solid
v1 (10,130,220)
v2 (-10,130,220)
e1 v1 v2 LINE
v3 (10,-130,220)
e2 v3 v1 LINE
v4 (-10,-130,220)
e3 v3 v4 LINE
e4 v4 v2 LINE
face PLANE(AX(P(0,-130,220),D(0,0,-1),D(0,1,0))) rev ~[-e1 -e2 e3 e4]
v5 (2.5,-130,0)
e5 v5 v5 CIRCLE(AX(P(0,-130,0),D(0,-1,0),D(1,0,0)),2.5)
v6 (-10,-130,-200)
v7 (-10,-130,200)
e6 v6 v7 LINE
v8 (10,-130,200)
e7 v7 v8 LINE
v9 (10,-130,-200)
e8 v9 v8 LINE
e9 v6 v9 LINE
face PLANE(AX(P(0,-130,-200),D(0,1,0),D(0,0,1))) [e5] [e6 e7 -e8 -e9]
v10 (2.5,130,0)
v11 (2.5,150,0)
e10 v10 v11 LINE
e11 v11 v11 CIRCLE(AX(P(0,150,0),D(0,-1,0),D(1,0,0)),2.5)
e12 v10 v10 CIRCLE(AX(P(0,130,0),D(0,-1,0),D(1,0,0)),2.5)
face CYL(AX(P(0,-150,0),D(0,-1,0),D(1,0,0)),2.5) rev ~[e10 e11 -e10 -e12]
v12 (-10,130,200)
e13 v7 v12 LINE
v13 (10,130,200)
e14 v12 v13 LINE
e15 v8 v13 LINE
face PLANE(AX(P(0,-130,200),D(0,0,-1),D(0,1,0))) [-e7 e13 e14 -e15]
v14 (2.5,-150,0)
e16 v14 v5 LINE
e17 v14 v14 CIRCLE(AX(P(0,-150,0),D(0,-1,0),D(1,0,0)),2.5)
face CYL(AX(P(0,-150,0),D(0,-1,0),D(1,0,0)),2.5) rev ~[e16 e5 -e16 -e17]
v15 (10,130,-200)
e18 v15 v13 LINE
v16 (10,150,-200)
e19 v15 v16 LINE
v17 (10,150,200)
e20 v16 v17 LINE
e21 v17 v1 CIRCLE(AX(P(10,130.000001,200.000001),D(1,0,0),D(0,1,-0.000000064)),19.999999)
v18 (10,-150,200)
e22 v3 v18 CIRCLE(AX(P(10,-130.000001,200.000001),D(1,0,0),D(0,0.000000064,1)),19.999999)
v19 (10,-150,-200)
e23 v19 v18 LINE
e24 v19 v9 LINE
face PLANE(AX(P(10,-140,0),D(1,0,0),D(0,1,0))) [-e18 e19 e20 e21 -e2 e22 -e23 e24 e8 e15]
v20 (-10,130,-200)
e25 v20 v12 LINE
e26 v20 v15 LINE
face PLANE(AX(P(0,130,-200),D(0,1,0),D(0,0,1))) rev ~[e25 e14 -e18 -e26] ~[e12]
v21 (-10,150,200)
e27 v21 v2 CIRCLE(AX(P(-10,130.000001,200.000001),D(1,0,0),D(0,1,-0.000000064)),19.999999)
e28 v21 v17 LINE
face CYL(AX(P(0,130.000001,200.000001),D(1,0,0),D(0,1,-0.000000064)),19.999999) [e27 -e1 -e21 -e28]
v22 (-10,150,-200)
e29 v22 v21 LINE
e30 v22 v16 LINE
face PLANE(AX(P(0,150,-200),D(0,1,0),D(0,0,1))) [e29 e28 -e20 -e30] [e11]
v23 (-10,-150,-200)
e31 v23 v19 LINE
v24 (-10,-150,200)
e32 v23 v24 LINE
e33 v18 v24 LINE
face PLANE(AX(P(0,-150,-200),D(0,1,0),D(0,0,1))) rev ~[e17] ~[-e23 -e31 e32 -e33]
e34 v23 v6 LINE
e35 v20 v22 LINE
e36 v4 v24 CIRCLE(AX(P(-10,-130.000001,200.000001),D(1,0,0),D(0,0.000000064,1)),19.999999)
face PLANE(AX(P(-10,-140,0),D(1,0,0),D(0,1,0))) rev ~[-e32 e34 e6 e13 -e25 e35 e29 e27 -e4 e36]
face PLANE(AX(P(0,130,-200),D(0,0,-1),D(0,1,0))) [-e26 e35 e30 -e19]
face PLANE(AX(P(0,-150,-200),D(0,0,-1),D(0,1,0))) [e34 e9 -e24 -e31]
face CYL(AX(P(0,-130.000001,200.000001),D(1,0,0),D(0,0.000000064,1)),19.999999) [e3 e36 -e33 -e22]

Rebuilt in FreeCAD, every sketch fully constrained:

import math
import FreeCAD as App
import Part
import Sketcher

V = App.Vector
Q = App.Units.Quantity

doc = App.newDocument("Part")
params = doc.addObject("Spreadsheet::Sheet", "Params")
for row, (alias, value) in enumerate([
    ("sketch1_radius", "19.999999 mm"),
    ("sketch1_width", "260 mm"),
    ("sketch1_height", "400 mm"),
    ("pad1_length", "20 mm"),
    ("sketch2_diameter", "5 mm"),
    ("pocket1_length", "3000 mm"),
], start=1):
    params.set(f"A{row}", alias)
    params.set(f"B{row}", "=" + value)
    params.setAlias(f"B{row}", alias)

body = doc.addObject("PartDesign::Body", "Body")

# Sketch on YZ plane
sketch1 = doc.addObject("Sketcher::SketchObject", "Sketch")
body.addObject(sketch1)
sketch1.AttachmentSupport = (doc.YZ_Plane, [""])
sketch1.MapMode = "FlatFace"
sketch1.addGeometry([
    Part.LineSegment(V(-150, 200, 0), V(-150, -200, 0)),  # 0
    Part.LineSegment(V(-150, -200, 0), V(-130, -200, 0)),  # 1
    Part.LineSegment(V(-130, -200, 0), V(-130, 200, 0)),  # 2
    Part.LineSegment(V(-130, 200, 0), V(130, 200, 0)),  # 3
    Part.LineSegment(V(130, 200, 0), V(130, -200, 0)),  # 4
    Part.LineSegment(V(130, -200, 0), V(150, -200, 0)),  # 5
    Part.LineSegment(V(150, -200, 0), V(150, 200, 0)),  # 6
    Part.ArcOfCircle(Part.Circle(V(130, 200, 0), V(0, 0, 1), 20), math.radians(0), math.radians(90)),  # 7
    Part.LineSegment(V(130, 220, 0), V(-130, 220, 0)),  # 8
    Part.ArcOfCircle(Part.Circle(V(-130, 200, 0), V(0, 0, 1), 20), math.radians(90), math.radians(180)),  # 9
], False)
sketch1.addConstraint([
    Sketcher.Constraint("Coincident", 0, 2, 1, 1),
    Sketcher.Constraint("Coincident", 1, 2, 2, 1),
    Sketcher.Constraint("Coincident", 2, 2, 3, 1),
    Sketcher.Constraint("Coincident", 3, 2, 4, 1),
    Sketcher.Constraint("Coincident", 4, 2, 5, 1),
    Sketcher.Constraint("Coincident", 5, 2, 6, 1),
    Sketcher.Constraint("Tangent", 6, 2, 7, 1),
    Sketcher.Constraint("Tangent", 7, 2, 8, 1),
    Sketcher.Constraint("Tangent", 8, 2, 9, 1),
    Sketcher.Constraint("Tangent", 9, 2, 0, 1),
    Sketcher.Constraint("Vertical", 0),
    Sketcher.Constraint("Horizontal", 1),
    Sketcher.Constraint("Vertical", 2),
    Sketcher.Constraint("Horizontal", 3),
    Sketcher.Constraint("Vertical", 4),
    Sketcher.Constraint("Horizontal", 5),
    Sketcher.Constraint("Vertical", 6),
    Sketcher.Constraint("Horizontal", 8),
    Sketcher.Constraint("Coincident", 2, 2, 9, 3),
    Sketcher.Constraint("Coincident", 3, 2, 7, 3),
    Sketcher.Constraint("Symmetric", 1, 2, 3, 2, -1, 1),
    Sketcher.Constraint("Horizontal", 1, 2, 4, 2),
    Sketcher.Constraint("Radius", 7, Q("19.999999 mm")),
    Sketcher.Constraint("DistanceX", 3, 1, 3, 2, Q("260 mm")),
    Sketcher.Constraint("DistanceY", 0, 2, 0, 1, Q("400 mm")),
])
sketch1.setExpression("Constraints[22]", "Params.sketch1_radius")
sketch1.setExpression("Constraints[23]", "Params.sketch1_width")
sketch1.setExpression("Constraints[24]", "Params.sketch1_height")
pad1 = doc.addObject("PartDesign::Pad", "Pad")
body.addObject(pad1)
pad1.Profile = sketch1
pad1.setExpression("Length", "Params.pad1_length")
pad1.Midplane = True

# Sketch on XZ plane
sketch2 = doc.addObject("Sketcher::SketchObject", "Sketch001")
body.addObject(sketch2)
sketch2.AttachmentSupport = (doc.XZ_Plane, [""])
sketch2.MapMode = "FlatFace"
sketch2.AttachmentOffset = App.Placement(V(0, 0, 150), App.Rotation())
sketch2.addGeometry(Part.Circle(V(0, 0, 0), V(0, 0, 1), 2.5), False)
sketch2.addConstraint([
    Sketcher.Constraint("Coincident", 0, 3, -1, 1),
    Sketcher.Constraint("Diameter", 0, Q("5 mm")),
])
sketch2.setExpression("Constraints[1]", "Params.sketch2_diameter")
pocket1 = doc.addObject("PartDesign::Pocket", "Pocket")
body.addObject(pocket1)
pocket1.Profile = sketch2
pocket1.setExpression("Length", "Params.pocket1_length")

doc.recompute()
